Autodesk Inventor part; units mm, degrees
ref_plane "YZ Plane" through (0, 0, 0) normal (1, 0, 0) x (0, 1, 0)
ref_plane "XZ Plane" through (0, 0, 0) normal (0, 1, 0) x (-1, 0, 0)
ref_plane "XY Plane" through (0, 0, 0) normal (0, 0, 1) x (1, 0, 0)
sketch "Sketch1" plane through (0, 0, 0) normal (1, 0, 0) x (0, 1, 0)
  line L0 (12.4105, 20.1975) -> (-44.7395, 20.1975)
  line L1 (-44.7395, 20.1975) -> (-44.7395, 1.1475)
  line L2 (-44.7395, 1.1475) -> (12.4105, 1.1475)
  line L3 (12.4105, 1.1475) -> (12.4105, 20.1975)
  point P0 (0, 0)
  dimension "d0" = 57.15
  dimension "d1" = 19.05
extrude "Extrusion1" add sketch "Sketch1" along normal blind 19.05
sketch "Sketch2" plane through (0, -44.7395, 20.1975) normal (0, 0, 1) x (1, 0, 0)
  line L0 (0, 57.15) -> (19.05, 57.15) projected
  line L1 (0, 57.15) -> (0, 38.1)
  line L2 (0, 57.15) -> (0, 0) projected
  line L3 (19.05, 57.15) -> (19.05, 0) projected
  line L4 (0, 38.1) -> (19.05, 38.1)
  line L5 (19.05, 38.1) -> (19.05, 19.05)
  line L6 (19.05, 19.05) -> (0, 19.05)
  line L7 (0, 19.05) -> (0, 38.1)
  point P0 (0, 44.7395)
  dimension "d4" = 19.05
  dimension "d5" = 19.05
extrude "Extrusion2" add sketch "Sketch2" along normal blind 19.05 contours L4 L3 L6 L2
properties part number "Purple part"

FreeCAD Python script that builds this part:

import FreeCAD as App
import Part
import Sketcher
from FreeCAD import Vector
Q = App.Units.Quantity

doc = App.newDocument("Part")
body = doc.addObject("PartDesign::Body", "Body")

sketch1 = doc.addObject("Sketcher::SketchObject", "Sketch")
body.addObject(sketch1)
sketch1.AttachmentSupport = (doc.YZ_Plane, [""])
sketch1.MapMode = "FlatFace"
sketch1.addGeometry([
    Part.LineSegment(Vector(12, 1, 0), Vector(12, 20, 0)),
    Part.LineSegment(Vector(12, 20, 0), Vector(-45, 20, 0)),
    Part.LineSegment(Vector(-45, 20, 0), Vector(-45, 1, 0)),
    Part.LineSegment(Vector(-45, 1, 0), Vector(12, 1, 0)),
], False)
sketch1.addConstraint([
    Sketcher.Constraint("Coincident", 0, 2, 1, 1),
    Sketcher.Constraint("Coincident", 1, 2, 2, 1),
    Sketcher.Constraint("Coincident", 2, 2, 3, 1),
    Sketcher.Constraint("Coincident", 3, 2, 0, 1),
    Sketcher.Constraint("Vertical", 0),
    Sketcher.Constraint("Horizontal", 1),
    Sketcher.Constraint("Vertical", 2),
    Sketcher.Constraint("Horizontal", 3),
    Sketcher.Constraint("DistanceX", 1, 2, 1, 1, Q("2.25 in")),
    Sketcher.Constraint("DistanceY", 0, 1, 0, 2, Q("0.75 in")),
    Sketcher.Constraint("DistanceX", -1, 1, 0, 2, Q("0.4886 in")),
    Sketcher.Constraint("DistanceY", -1, 1, 0, 2, Q("20.1975 mm")),
])
pad1 = doc.addObject("PartDesign::Pad", "Pad")
body.addObject(pad1)
pad1.Profile = sketch1
pad1.Length = Q("0.75 in")

sketch2 = doc.addObject("Sketcher::SketchObject", "Sketch001")
body.addObject(sketch2)
sketch2.AttachmentSupport = (doc.XY_Plane, [""])
sketch2.MapMode = "FlatFace"
sketch2.AttachmentOffset = App.Placement(Vector(0, 0, 20.1975), App.Rotation())
sketch2.addGeometry([
    Part.LineSegment(Vector(19, -7, 0), Vector(0, -7, 0)),
    Part.LineSegment(Vector(0, -7, 0), Vector(0, -26, 0)),
    Part.LineSegment(Vector(0, -26, 0), Vector(19, -26, 0)),
    Part.LineSegment(Vector(19, -26, 0), Vector(19, -7, 0)),
], False)
sketch2.addConstraint([
    Sketcher.Constraint("Coincident", 0, 2, 1, 1),
    Sketcher.Constraint("Coincident", 1, 2, 2, 1),
    Sketcher.Constraint("Coincident", 2, 2, 3, 1),
    Sketcher.Constraint("Coincident", 3, 2, 0, 1),
    Sketcher.Constraint("Horizontal", 0),
    Sketcher.Constraint("Vertical", 1),
    Sketcher.Constraint("Horizontal", 2),
    Sketcher.Constraint("Vertical", 3),
    Sketcher.Constraint("PointOnObject", 0, 2, -2),
    Sketcher.Constraint("Equal", 2, 1),
    Sketcher.Constraint("DistanceX", 0, 2, 0, 1, Q("0.75 in")),
    Sketcher.Constraint("DistanceY", 0, 2, -1, 1, Q("0.2614 in")),
])
pad2 = doc.addObject("PartDesign::Pad", "Pad001")
body.addObject(pad2)
pad2.Profile = sketch2
pad2.Length = Q("0.75 in")

doc.recompute()
